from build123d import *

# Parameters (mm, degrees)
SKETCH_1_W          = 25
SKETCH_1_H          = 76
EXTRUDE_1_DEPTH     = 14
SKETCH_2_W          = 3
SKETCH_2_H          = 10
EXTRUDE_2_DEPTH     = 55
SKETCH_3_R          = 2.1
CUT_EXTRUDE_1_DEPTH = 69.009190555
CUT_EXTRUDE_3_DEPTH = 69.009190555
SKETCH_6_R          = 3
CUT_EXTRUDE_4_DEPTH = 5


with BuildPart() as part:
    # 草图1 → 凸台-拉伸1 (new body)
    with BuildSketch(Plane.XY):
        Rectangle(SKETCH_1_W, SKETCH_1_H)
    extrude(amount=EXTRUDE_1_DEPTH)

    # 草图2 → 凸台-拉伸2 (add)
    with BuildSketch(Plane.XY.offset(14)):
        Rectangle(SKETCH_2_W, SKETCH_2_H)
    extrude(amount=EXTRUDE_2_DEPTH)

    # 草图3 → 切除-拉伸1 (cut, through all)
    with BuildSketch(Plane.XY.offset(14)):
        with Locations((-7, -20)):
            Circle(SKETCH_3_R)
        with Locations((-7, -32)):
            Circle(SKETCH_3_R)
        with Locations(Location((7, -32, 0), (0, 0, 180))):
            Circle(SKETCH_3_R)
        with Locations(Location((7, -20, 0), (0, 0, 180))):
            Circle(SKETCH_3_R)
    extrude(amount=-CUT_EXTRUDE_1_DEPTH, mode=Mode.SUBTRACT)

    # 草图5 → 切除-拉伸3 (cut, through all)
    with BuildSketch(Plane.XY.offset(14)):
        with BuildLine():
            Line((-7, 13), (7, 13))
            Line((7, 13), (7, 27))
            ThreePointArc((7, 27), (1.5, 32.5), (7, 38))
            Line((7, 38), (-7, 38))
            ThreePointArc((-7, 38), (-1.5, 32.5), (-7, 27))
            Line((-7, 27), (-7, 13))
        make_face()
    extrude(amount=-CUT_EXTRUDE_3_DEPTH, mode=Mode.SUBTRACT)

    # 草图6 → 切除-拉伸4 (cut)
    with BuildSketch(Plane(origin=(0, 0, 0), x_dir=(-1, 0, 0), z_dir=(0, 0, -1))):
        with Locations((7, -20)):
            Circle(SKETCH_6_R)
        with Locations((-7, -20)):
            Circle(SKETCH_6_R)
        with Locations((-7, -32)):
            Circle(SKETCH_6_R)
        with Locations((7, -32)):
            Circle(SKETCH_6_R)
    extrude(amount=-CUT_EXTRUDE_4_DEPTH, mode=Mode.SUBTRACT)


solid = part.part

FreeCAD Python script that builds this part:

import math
import FreeCAD as App
import Part
import Sketcher

V = App.Vector


def add_polygon(sketch, points):
    """Adds a closed chain of lines whose ends are joined by coincident constraints."""
    first, n = sketch.GeometryCount, len(points)
    for a, b in zip(points, points[1:] + points[:1]):
        sketch.addGeometry(Part.LineSegment(App.Vector(*a, 0), App.Vector(*b, 0)), False)
    for i in range(n):
        sketch.addConstraint(Sketcher.Constraint("Coincident", first + i, 2, first + (i + 1) % n, 1))

doc = App.newDocument("Part")
body = doc.addObject("PartDesign::Body", "Body")

# Sketch on XY plane
sketch1 = doc.addObject("Sketcher::SketchObject", "Sketch")
body.addObject(sketch1)
sketch1.AttachmentSupport = (doc.XY_Plane, [""])
sketch1.MapMode = "FlatFace"
add_polygon(sketch1, [(-12, 38), (-12, -38), (12, -38), (12, 38)])  # lines 0-3
sketch1.addConstraint([
    Sketcher.Constraint("Vertical", 0),
    Sketcher.Constraint("Horizontal", 1),
    Sketcher.Constraint("Vertical", 2),
    Sketcher.Constraint("Horizontal", 3),
    Sketcher.Constraint("Symmetric", 0, 2, 2, 2, -1, 1),
    Sketcher.Constraint("DistanceX", 1, 1, 1, 2, 25.0),
    Sketcher.Constraint("DistanceY", 0, 2, 0, 1, 76.0),
])
pad1 = doc.addObject("PartDesign::Pad", "Pad")
body.addObject(pad1)
pad1.Profile = sketch1
pad1.Length = 14

# Sketch on XY plane
sketch2 = doc.addObject("Sketcher::SketchObject", "Sketch001")
body.addObject(sketch2)
sketch2.AttachmentSupport = (doc.XY_Plane, [""])
sketch2.MapMode = "FlatFace"
sketch2.AttachmentOffset = App.Placement(V(0, 0, 14), App.Rotation())
add_polygon(sketch2, [(-1.5, 5), (-1.5, -5), (1.5, -5), (1.5, 5)])  # lines 0-3
sketch2.addConstraint([
    Sketcher.Constraint("Vertical", 0),
    Sketcher.Constraint("Horizontal", 1),
    Sketcher.Constraint("Vertical", 2),
    Sketcher.Constraint("Horizontal", 3),
    Sketcher.Constraint("Symmetric", 0, 2, 2, 2, -1, 1),
    Sketcher.Constraint("DistanceX", 1, 1, 1, 2, 3.0),
    Sketcher.Constraint("DistanceY", 0, 2, 0, 1, 10.0),
])
pad2 = doc.addObject("PartDesign::Pad", "Pad001")
body.addObject(pad2)
pad2.Profile = sketch2
pad2.Length = 55

# Sketch on XY plane
sketch3 = doc.addObject("Sketcher::SketchObject", "Sketch002")
body.addObject(sketch3)
sketch3.AttachmentSupport = (doc.XY_Plane, [""])
sketch3.MapMode = "FlatFace"
sketch3.AttachmentOffset = App.Placement(V(0, 0, 14), App.Rotation())
sketch3.addGeometry([
    Part.Circle(V(-7, -20, 0), V(0, 0, 1), 2.1),
    Part.Circle(V(-7, -32, 0), V(0, 0, 1), 2.1),
    Part.Circle(V(7, -32, 0), V(0, 0, 1), 2.1),
    Part.Circle(V(7, -20, 0), V(0, 0, 1), 2.1),
], False)
sketch3.addConstraint([
    Sketcher.Constraint("Equal", 0, 1),
    Sketcher.Constraint("Equal", 1, 2),
    Sketcher.Constraint("Equal", 2, 3),
    Sketcher.Constraint("Symmetric", 1, 3, 2, 3, -2),
    Sketcher.Constraint("Symmetric", 0, 3, 3, 3, -2),
    Sketcher.Constraint("Vertical", 0, 3, 1, 3),
    Sketcher.Constraint("Diameter", 0, 4.2),
    Sketcher.Constraint("DistanceX", 0, 3, -1, 1, 7.0),
    Sketcher.Constraint("DistanceY", 0, 3, -1, 1, 20.0),
    Sketcher.Constraint("DistanceY", 1, 3, -1, 1, 32.0),
])
pocket1 = doc.addObject("PartDesign::Pocket", "Pocket")
body.addObject(pocket1)
pocket1.Profile = sketch3
pocket1.Type = "ThroughAll"

# Sketch on XY plane
sketch4 = doc.addObject("Sketcher::SketchObject", "Sketch003")
body.addObject(sketch4)
sketch4.AttachmentSupport = (doc.XY_Plane, [""])
sketch4.MapMode = "FlatFace"
sketch4.AttachmentOffset = App.Placement(V(0, 0, 14), App.Rotation())
sketch4.addGeometry([
    Part.LineSegment(V(-7, 13, 0), V(7, 13, 0)),  # 0
    Part.LineSegment(V(7, 13, 0), V(7, 27, 0)),  # 1
    Part.ArcOfCircle(Part.Circle(V(7, 32, 0), V(0, 0, 1), 6), math.radians(90), math.radians(270)),  # 2
    Part.LineSegment(V(7, 38, 0), V(-7, 38, 0)),  # 3
    Part.ArcOfCircle(Part.Circle(V(-7, 32, 0), V(0, 0, 1), 6), math.radians(-90), math.radians(90)),  # 4
    Part.LineSegment(V(-7, 27, 0), V(-7, 13, 0)),  # 5
], False)
sketch4.addConstraint([
    Sketcher.Constraint("Coincident", 0, 2, 1, 1),
    Sketcher.Constraint("Coincident", 1, 2, 2, 2),
    Sketcher.Constraint("Tangent", 2, 1, 3, 1),
    Sketcher.Constraint("Tangent", 3, 2, 4, 2),
    Sketcher.Constraint("Coincident", 4, 1, 5, 1),
    Sketcher.Constraint("Coincident", 5, 2, 0, 1),
    Sketcher.Constraint("Horizontal", 0),
    Sketcher.Constraint("Vertical", 1),
    Sketcher.Constraint("Horizontal", 3),
    Sketcher.Constraint("Vertical", 5),
    Sketcher.Constraint("Equal", 2, 4),
    Sketcher.Constraint("Vertical", 2, 3, 0, 2),
    Sketcher.Constraint("Vertical", 3, 2, 4, 1),
    Sketcher.Constraint("Equal", 3, 1),
    Sketcher.Constraint("Radius", 2, 5.5),
    Sketcher.Constraint("DistanceX", 0, 1, 0, 2, 14.0),
    Sketcher.Constraint("DistanceX", -1, 1, 2, 3, 7.0),
    Sketcher.Constraint("DistanceY", -1, 1, 0, 2, 13.0),
])
pocket2 = doc.addObject("PartDesign::Pocket", "Pocket001")
body.addObject(pocket2)
pocket2.Profile = sketch4
pocket2.Type = "ThroughAll"

# Sketch on XY plane
sketch5 = doc.addObject("Sketcher::SketchObject", "Sketch004")
body.addObject(sketch5)
sketch5.AttachmentSupport = (doc.XY_Plane, [""])
sketch5.MapMode = "FlatFace"
sketch5.addGeometry([
    Part.Circle(V(-7, -20, 0), V(0, 0, 1), 3),
    Part.Circle(V(7, -20, 0), V(0, 0, 1), 3),
    Part.Circle(V(7, -32, 0), V(0, 0, 1), 3),
    Part.Circle(V(-7, -32, 0), V(0, 0, 1), 3),
], False)
sketch5.addConstraint([
    Sketcher.Constraint("Equal", 0, 1),
    Sketcher.Constraint("Equal", 1, 2),
    Sketcher.Constraint("Equal", 2, 3),
    Sketcher.Constraint("Symmetric", 0, 3, 1, 3, -2),
    Sketcher.Constraint("Symmetric", 2, 3, 3, 3, -2),
    Sketcher.Constraint("Vertical", 1, 3, 2, 3),
    Sketcher.Constraint("Diameter", 0, 6.0),
    Sketcher.Constraint("DistanceX", 0, 3, -1, 1, 7.0),
    Sketcher.Constraint("DistanceY", 0, 3, -1, 1, 20.0),
    Sketcher.Constraint("DistanceY", 2, 3, -1, 1, 32.0),
])
pocket3 = doc.addObject("PartDesign::Pocket", "Pocket002")
body.addObject(pocket3)
pocket3.Profile = sketch5
pocket3.Length = 5
pocket3.Reversed = True

doc.recompute()
